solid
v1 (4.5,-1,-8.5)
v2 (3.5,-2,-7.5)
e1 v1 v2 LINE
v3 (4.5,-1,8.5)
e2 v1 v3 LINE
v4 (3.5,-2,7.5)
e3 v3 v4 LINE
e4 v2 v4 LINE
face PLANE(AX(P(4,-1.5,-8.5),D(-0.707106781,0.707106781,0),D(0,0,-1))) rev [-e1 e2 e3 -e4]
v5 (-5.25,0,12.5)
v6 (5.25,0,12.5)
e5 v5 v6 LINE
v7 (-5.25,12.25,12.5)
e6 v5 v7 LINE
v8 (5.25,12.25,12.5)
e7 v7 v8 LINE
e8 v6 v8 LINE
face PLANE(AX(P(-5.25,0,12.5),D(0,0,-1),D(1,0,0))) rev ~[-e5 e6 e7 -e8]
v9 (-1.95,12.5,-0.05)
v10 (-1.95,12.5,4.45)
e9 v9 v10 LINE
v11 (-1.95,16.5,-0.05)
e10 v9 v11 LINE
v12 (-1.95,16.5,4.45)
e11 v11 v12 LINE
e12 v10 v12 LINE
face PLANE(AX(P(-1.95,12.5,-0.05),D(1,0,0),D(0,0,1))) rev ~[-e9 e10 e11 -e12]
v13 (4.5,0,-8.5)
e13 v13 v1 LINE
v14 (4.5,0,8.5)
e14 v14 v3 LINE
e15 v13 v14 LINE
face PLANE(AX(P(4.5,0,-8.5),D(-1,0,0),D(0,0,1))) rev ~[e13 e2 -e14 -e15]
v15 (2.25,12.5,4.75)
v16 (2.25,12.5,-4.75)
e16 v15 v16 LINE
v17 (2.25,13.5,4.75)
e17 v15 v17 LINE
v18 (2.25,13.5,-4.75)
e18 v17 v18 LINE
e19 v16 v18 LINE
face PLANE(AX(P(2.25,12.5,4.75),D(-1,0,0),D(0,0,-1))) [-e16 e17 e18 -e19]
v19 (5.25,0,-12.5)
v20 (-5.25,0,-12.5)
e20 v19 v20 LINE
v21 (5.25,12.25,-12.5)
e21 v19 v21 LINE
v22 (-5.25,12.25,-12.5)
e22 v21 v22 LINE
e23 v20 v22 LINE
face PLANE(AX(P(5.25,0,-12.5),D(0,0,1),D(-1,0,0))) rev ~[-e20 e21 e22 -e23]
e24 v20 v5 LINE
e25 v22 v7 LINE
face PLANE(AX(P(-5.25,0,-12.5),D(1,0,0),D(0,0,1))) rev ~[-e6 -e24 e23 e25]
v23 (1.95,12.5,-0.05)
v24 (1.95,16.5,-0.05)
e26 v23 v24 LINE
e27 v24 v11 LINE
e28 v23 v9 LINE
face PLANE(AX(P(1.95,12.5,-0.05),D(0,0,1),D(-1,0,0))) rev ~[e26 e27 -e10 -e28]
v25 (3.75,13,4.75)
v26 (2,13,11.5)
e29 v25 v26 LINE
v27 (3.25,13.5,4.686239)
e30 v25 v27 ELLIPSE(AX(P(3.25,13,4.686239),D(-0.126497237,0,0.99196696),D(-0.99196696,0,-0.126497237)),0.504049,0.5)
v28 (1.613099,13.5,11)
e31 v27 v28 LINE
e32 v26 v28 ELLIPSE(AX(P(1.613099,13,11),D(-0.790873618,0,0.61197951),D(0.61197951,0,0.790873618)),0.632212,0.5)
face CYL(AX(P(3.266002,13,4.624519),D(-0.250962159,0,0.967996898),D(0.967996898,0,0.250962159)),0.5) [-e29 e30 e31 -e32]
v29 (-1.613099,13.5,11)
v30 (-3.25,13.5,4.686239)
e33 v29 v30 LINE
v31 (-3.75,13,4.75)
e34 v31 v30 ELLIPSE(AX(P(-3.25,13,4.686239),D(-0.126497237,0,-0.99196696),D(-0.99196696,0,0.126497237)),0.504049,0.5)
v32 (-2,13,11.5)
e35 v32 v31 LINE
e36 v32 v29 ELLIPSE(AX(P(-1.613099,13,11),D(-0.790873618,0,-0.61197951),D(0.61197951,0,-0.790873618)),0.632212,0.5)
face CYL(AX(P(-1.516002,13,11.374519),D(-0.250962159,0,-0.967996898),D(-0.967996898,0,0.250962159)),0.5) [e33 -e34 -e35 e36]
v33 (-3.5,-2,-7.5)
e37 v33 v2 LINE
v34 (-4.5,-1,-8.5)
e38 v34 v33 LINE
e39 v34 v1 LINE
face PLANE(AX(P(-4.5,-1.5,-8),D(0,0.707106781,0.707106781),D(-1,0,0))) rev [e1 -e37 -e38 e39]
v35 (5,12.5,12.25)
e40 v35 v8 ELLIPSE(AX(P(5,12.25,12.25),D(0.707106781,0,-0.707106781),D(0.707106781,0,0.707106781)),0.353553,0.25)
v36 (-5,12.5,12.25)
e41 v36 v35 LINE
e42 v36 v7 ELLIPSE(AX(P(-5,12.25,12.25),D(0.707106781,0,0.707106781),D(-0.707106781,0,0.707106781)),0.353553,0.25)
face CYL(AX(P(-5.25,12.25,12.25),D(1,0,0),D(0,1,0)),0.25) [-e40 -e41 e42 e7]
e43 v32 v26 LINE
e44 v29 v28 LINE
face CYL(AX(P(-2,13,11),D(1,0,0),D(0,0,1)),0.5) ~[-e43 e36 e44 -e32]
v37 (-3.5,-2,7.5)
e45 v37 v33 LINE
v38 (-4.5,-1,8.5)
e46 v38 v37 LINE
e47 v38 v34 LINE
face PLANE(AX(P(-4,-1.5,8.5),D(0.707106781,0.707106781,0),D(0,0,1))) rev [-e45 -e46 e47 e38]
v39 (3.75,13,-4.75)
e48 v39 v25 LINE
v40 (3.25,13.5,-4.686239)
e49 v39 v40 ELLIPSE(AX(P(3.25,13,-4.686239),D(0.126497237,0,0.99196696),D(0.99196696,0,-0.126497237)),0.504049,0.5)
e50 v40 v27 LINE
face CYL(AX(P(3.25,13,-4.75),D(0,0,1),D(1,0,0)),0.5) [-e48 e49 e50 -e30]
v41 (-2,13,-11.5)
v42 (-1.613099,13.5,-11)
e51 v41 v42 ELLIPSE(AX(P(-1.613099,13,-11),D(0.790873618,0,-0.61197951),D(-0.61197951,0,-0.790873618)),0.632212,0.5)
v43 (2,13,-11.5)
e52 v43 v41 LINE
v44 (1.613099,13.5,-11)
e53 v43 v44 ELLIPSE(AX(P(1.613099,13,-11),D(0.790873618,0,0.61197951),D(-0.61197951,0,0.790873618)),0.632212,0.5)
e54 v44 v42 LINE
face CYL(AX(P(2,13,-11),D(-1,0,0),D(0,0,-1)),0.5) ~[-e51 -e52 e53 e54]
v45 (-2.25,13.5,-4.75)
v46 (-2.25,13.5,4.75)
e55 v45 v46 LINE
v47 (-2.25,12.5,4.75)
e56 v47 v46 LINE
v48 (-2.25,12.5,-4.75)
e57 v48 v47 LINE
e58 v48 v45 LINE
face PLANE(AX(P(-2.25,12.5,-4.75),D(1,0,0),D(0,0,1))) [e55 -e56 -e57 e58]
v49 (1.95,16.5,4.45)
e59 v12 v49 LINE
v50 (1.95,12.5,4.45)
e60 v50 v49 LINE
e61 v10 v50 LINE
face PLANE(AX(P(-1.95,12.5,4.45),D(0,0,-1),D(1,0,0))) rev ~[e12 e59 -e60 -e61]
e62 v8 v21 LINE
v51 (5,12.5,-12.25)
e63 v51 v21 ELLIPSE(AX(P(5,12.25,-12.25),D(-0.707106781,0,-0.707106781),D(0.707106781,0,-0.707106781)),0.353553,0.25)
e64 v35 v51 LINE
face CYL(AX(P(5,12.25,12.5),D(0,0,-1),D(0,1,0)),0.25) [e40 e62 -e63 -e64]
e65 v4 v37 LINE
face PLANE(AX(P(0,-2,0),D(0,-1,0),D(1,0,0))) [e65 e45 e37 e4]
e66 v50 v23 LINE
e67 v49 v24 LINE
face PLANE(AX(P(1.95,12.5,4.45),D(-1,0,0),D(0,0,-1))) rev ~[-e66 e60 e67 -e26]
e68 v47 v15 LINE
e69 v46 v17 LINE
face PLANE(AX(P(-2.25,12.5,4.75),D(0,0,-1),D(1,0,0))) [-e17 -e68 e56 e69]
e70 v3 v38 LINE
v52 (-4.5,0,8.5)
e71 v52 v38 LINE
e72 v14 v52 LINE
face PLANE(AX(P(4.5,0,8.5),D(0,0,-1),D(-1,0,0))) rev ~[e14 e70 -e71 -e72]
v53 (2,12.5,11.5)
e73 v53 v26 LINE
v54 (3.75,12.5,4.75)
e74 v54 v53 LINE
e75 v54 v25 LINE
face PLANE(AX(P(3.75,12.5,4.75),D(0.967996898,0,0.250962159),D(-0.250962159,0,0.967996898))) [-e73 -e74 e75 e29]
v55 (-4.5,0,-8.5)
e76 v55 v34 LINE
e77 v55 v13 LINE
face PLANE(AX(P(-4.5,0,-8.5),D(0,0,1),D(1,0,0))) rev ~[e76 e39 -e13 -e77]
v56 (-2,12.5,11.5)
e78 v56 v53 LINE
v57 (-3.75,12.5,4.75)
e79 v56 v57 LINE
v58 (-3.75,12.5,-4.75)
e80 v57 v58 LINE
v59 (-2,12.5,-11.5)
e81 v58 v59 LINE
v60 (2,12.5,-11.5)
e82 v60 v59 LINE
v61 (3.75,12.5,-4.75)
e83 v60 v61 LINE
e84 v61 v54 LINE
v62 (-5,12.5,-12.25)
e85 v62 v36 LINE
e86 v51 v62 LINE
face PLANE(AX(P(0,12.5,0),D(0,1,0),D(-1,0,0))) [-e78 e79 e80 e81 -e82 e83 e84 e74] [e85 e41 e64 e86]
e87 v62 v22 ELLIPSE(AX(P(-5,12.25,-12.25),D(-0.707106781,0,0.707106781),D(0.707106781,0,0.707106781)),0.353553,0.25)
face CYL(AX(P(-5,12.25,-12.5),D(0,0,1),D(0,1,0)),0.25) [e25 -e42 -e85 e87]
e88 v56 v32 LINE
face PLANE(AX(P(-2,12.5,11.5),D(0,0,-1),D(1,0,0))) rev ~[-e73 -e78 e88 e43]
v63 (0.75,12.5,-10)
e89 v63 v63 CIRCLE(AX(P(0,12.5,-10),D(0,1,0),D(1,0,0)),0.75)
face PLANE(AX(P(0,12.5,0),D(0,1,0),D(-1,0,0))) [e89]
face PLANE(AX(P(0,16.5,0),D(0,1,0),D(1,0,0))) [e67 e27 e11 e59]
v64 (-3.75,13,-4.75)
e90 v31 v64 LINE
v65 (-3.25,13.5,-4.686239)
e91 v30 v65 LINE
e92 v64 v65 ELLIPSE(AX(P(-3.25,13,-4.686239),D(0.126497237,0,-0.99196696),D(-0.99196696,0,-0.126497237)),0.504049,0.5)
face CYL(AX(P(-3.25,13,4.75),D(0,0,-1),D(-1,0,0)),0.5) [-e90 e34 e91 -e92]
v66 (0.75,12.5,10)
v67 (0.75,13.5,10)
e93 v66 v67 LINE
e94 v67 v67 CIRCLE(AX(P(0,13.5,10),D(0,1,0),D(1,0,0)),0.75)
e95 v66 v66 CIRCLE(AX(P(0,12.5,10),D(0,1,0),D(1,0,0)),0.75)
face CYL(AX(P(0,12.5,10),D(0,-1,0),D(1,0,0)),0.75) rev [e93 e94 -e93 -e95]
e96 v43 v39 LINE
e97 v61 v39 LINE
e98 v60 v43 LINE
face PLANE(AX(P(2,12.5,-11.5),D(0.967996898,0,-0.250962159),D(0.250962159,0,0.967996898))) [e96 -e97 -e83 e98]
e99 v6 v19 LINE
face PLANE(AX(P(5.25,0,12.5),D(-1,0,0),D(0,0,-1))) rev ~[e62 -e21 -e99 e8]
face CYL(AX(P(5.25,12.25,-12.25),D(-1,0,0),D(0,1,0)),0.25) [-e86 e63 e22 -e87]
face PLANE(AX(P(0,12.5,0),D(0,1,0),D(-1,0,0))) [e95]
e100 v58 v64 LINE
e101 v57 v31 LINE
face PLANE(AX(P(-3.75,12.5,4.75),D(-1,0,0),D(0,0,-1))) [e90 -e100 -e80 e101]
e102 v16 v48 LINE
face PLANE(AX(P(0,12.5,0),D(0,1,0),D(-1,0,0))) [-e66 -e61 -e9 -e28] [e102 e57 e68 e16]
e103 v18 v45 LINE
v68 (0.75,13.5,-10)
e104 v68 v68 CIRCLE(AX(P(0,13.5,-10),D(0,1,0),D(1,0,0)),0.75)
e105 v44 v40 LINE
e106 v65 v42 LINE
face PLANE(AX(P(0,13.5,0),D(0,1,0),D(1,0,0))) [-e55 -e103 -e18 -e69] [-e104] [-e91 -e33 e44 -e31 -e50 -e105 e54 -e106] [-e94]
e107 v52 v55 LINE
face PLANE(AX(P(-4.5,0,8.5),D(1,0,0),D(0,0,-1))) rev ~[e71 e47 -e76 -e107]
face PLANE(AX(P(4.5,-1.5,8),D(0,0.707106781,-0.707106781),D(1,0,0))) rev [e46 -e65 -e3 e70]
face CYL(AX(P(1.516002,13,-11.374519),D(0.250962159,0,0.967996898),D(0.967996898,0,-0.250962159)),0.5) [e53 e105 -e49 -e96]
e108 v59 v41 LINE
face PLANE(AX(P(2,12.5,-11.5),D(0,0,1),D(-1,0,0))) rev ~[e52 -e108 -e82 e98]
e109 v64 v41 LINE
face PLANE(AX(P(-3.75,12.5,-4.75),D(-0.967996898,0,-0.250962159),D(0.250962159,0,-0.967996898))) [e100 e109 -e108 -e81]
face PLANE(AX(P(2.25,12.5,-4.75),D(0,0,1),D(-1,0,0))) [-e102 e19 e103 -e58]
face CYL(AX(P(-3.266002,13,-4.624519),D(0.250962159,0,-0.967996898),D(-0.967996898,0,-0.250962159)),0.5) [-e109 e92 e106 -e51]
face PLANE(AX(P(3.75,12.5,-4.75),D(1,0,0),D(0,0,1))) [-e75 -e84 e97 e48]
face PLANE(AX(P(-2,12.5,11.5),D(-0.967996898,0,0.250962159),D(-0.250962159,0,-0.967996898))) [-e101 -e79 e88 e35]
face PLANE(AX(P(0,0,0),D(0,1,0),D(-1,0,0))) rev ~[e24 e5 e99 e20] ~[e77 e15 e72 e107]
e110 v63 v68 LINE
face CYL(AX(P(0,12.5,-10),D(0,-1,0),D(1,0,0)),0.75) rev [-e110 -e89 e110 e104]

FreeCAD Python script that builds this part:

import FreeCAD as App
import Part
import Sketcher

V = App.Vector
Q = App.Units.Quantity


def edges_at(feature, points):
    """Names of the edges that pass closest to the given points."""
    edges = feature.Shape.Edges
    near = lambda p: min(range(len(edges)), key=lambda i: edges[i].distToShape(Part.Vertex(*p))[0])
    return sorted({f"Edge{near(p) + 1}" for p in points})


def add_polygon(sketch, points):
    """Adds a closed chain of lines whose ends are joined by coincident constraints."""
    first, n = sketch.GeometryCount, len(points)
    for a, b in zip(points, points[1:] + points[:1]):
        sketch.addGeometry(Part.LineSegment(App.Vector(*a, 0), App.Vector(*b, 0)), False)
    for i in range(n):
        sketch.addConstraint(Sketcher.Constraint("Coincident", first + i, 2, first + (i + 1) % n, 1))

doc = App.newDocument("Part")
body = doc.addObject("PartDesign::Body", "Body")

sketch1 = doc.addObject("Sketcher::SketchObject", "Sketch")
body.addObject(sketch1)
sketch1.AttachmentSupport = (doc.XZ_Plane, [""])
sketch1.MapMode = "FlatFace"
add_polygon(sketch1, [(-5, -12), (-5, 12), (5, 12), (5, -12)])
sketch1.addConstraint(Sketcher.Constraint("Vertical", 0))
sketch1.addConstraint(Sketcher.Constraint("Horizontal", 1))
sketch1.addConstraint(Sketcher.Constraint("Vertical", 2))
sketch1.addConstraint(Sketcher.Constraint("Horizontal", 3))
sketch1.addConstraint(Sketcher.Constraint("Symmetric", 0, 2, 2, 2, -1, 1))
sketch1.addConstraint(Sketcher.Constraint("DistanceY", 0, 1, 0, 2, Q("25 mm")))
sketch1.addConstraint(Sketcher.Constraint("DistanceX", 1, 1, 1, 2, Q("10.5 mm")))
pad1 = doc.addObject("PartDesign::Pad", "Pad")
body.addObject(pad1)
pad1.Profile = sketch1
pad1.Length = 12.5
pad1.Reversed = True

sketch2 = doc.addObject("Sketcher::SketchObject", "Sketch001")
body.addObject(sketch2)
sketch2.AttachmentSupport = (doc.XZ_Plane, [""])
sketch2.MapMode = "FlatFace"
sketch2.AttachmentOffset = App.Placement(V(0, 0, -12.5), App.Rotation())
add_polygon(sketch2, [(-3.8, -4.8), (-3.8, 4.8), (-2, 11.5), (2, 11.5), (3.8, 4.8), (3.8, -4.8), (2, -11.5), (-2, -11.5)])
add_polygon(sketch2, [(-2.2, 4.8), (-2.2, -4.8), (2.2, -4.8), (2.2, 4.8)])
sketch2.addGeometry(Part.Circle(V(0, 10, 0), V(0, 0, 1), 0.8), False)
sketch2.addGeometry(Part.Circle(V(0, -10, 0), V(0, 0, 1), 0.8), False)
sketch2.addConstraint(Sketcher.Constraint("Vertical", 0))
sketch2.addConstraint(Sketcher.Constraint("Horizontal", 2))
sketch2.addConstraint(Sketcher.Constraint("Vertical", 4))
sketch2.addConstraint(Sketcher.Constraint("Horizontal", 6))
sketch2.addConstraint(Sketcher.Constraint("Vertical", 8))
sketch2.addConstraint(Sketcher.Constraint("Horizontal", 9))
sketch2.addConstraint(Sketcher.Constraint("Vertical", 10))
sketch2.addConstraint(Sketcher.Constraint("Horizontal", 11))
sketch2.addConstraint(Sketcher.Constraint("Equal", 12, 13))
sketch2.addConstraint(Sketcher.Constraint("Symmetric", 12, 3, 13, 3, -1, 1))
sketch2.addConstraint(Sketcher.Constraint("Symmetric", 0, 2, 4, 2, -1, 1))
sketch2.addConstraint(Sketcher.Constraint("Symmetric", 1, 2, 5, 2, -1, 1))
sketch2.addConstraint(Sketcher.Constraint("Symmetric", 8, 2, 10, 2, -1, 1))
sketch2.addConstraint(Sketcher.Constraint("PointOnObject", 12, 3, -2))
sketch2.addConstraint(Sketcher.Constraint("Parallel", 3, 7))
sketch2.addConstraint(Sketcher.Constraint("Horizontal", 0, 2, 3, 2))
sketch2.addConstraint(Sketcher.Constraint("Horizontal", 4, 2, 7, 2))
sketch2.addConstraint(Sketcher.Constraint("Horizontal", 7, 2, 8, 2))
sketch2.addConstraint(Sketcher.Constraint("Vertical", 2, 2, 5, 2))
sketch2.addConstraint(Sketcher.Constraint("Diameter", 12, Q("1.5 mm")))
sketch2.addConstraint(Sketcher.Constraint("DistanceX", 2, 1, 2, 2, Q("4 mm")))
sketch2.addConstraint(Sketcher.Constraint("DistanceX", 9, 1, 9, 2, Q("4.5 mm")))
sketch2.addConstraint(Sketcher.Constraint("DistanceY", 0, 1, 0, 2, Q("9.5 mm")))
sketch2.addConstraint(Sketcher.Constraint("DistanceY", 12, 3, 1, 2, Q("1.5 mm")))
sketch2.addConstraint(Sketcher.Constraint("DistanceX", 7, 2, 8, 2, Q("1.5 mm")))
sketch2.addConstraint(Sketcher.Constraint("DistanceY", -1, 1, 12, 3, Q("10 mm")))
pad2 = doc.addObject("PartDesign::Pad", "Pad001")
body.addObject(pad2)
pad2.Profile = sketch2
pad2.Length = 1
pad2.Reversed = True

sketch3 = doc.addObject("Sketcher::SketchObject", "Sketch002")
body.addObject(sketch3)
sketch3.AttachmentSupport = (doc.XZ_Plane, [""])
sketch3.MapMode = "FlatFace"
sketch3.AttachmentOffset = App.Placement(V(0, 0, -12.5), App.Rotation())
add_polygon(sketch3, [(-1.9, -0.1), (-1.9, 4.5), (1.9, 4.5), (1.9, -0.1)])
sketch3.addConstraint(Sketcher.Constraint("Vertical", 0))
sketch3.addConstraint(Sketcher.Constraint("Horizontal", 1))
sketch3.addConstraint(Sketcher.Constraint("Vertical", 2))
sketch3.addConstraint(Sketcher.Constraint("Horizontal", 3))
sketch3.addConstraint(Sketcher.Constraint("DistanceY", 0, 1, 0, 2, Q("4.5 mm")))
sketch3.addConstraint(Sketcher.Constraint("DistanceX", 1, 1, 1, 2, Q("3.9 mm")))
sketch3.addConstraint(Sketcher.Constraint("DistanceX", 0, 2, -1, 1, Q("1.95 mm")))
sketch3.addConstraint(Sketcher.Constraint("DistanceY", -1, 1, 0, 2, Q("4.45 mm")))
pad3 = doc.addObject("PartDesign::Pad", "Pad002")
body.addObject(pad3)
pad3.Profile = sketch3
pad3.Length = 4
pad3.Reversed = True

sketch4 = doc.addObject("Sketcher::SketchObject", "Sketch003")
body.addObject(sketch4)
sketch4.AttachmentSupport = (doc.XZ_Plane, [""])
sketch4.MapMode = "FlatFace"
add_polygon(sketch4, [(4, -8), (4, 8), (-4, 8), (-4, -8)])
sketch4.addConstraint(Sketcher.Constraint("Vertical", 0))
sketch4.addConstraint(Sketcher.Constraint("Horizontal", 1))
sketch4.addConstraint(Sketcher.Constraint("Vertical", 2))
sketch4.addConstraint(Sketcher.Constraint("Horizontal", 3))
sketch4.addConstraint(Sketcher.Constraint("Symmetric", 0, 2, 2, 2, -1, 1))
sketch4.addConstraint(Sketcher.Constraint("DistanceX", 1, 2, 1, 1, Q("9 mm")))
sketch4.addConstraint(Sketcher.Constraint("DistanceY", 0, 1, 0, 2, Q("17 mm")))
pad4 = doc.addObject("PartDesign::Pad", "Pad003")
body.addObject(pad4)
pad4.Profile = sketch4
pad4.Length = 2
doc.recompute()

chamfer = doc.addObject("PartDesign::Chamfer", "Chamfer")
body.addObject(chamfer)
chamfer.Base = (pad4, edges_at(pad4, [
    (0, -2, 8.5),
    (4.5, -2, 0),
    (0, -2, -8.5),
    (-4.5, -2, 0),
]))
chamfer.Size = 1
doc.recompute()

fillet = doc.addObject("PartDesign::Fillet", "Fillet")
body.addObject(fillet)
fillet.Base = (chamfer, edges_at(chamfer, [
    (0, 13.5, 11.5),
    (-2.875, 13.5, 8.125),
    (2.875, 13.5, 8.125),
    (-3.75, 13.5, 0),
    (-2.875, 13.5, -8.125),
    (0, 13.5, -11.5),
    (2.875, 13.5, -8.125),
    (3.75, 13.5, 0),
]))
fillet.Radius = 0.5
doc.recompute()

fillet2 = doc.addObject("PartDesign::Fillet", "Fillet001")
body.addObject(fillet2)
fillet2.Base = (fillet, edges_at(fillet, [
    (-5.25, 12.5, 0),
    (0, 12.5, 12.5),
    (5.25, 12.5, 0),
    (0, 12.5, -12.5),
]))
fillet2.Radius = 0.25

doc.recompute()
